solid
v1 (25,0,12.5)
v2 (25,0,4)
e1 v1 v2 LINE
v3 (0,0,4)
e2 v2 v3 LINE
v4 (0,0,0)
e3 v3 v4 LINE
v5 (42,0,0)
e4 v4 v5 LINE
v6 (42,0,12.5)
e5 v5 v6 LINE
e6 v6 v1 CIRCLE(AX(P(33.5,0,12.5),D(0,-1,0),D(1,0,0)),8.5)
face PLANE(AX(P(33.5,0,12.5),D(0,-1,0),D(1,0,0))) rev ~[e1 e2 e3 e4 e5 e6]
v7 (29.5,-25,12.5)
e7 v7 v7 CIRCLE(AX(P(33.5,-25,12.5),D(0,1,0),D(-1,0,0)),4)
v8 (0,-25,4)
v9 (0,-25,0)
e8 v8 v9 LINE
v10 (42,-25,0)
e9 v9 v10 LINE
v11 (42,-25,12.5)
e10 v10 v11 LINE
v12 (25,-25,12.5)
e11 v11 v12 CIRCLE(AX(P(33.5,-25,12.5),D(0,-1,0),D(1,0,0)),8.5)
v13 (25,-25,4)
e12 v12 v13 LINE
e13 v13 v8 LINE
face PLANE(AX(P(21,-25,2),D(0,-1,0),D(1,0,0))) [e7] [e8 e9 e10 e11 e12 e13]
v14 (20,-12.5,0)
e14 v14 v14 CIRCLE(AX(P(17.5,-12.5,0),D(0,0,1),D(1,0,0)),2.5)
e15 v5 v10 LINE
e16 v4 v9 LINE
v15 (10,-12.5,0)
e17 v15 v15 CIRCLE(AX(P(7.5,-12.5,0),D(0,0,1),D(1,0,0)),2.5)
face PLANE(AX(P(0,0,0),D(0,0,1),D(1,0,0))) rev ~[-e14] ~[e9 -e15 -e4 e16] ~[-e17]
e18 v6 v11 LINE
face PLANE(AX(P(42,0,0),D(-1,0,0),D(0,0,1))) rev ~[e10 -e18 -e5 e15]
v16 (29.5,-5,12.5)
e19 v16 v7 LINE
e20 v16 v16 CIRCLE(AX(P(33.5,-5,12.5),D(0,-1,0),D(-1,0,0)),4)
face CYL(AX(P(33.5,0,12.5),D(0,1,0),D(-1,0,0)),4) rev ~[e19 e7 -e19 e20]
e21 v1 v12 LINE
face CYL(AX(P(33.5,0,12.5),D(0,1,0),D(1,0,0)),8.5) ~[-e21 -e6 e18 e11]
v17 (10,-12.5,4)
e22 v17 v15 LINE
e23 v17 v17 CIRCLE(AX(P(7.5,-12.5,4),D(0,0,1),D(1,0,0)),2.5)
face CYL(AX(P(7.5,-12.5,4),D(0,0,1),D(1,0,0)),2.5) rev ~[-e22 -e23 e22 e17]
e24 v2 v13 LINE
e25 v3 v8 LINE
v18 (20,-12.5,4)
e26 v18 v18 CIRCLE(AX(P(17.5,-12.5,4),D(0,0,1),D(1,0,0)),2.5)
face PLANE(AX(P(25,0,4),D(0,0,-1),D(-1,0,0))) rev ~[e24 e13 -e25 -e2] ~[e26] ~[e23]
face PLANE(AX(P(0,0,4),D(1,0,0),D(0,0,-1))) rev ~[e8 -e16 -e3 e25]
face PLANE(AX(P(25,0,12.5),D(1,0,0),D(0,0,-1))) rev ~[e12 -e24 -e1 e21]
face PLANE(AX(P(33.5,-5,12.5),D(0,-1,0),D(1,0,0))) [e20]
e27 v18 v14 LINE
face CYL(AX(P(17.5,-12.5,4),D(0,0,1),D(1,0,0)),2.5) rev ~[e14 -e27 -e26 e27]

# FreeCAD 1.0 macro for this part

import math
import FreeCAD as App
import Part
import Sketcher
from FreeCAD import Vector

doc = App.newDocument("Part")
body = doc.addObject("PartDesign::Body", "Body")

# Sketch on XZ plane
sketch1 = body.newObject("Sketcher::SketchObject", "Sketch")
sketch1.AttachmentSupport = (doc.getObject("XZ_Plane"), [""])
sketch1.MapMode = "FlatFace"
sketch1.addGeometry(Part.LineSegment(Vector(0, 4, 0), Vector(0, 0, 0)), False)
sketch1.addGeometry(Part.LineSegment(Vector(0, 0, 0), Vector(42, 0, 0)), False)
sketch1.addGeometry(Part.LineSegment(Vector(42, 0, 0), Vector(42, 12.5, 0)), False)
sketch1.addGeometry(Part.ArcOfCircle(Part.Circle(Vector(33.5, 12.5, 0), Vector(0, 0, 1), 8.5), math.radians(0), math.radians(180)), False)
sketch1.addGeometry(Part.LineSegment(Vector(25, 12.5, 0), Vector(25, 4, 0)), False)
sketch1.addGeometry(Part.LineSegment(Vector(25, 4, 0), Vector(0, 4, 0)), False)
sketch1.addGeometry(Part.Circle(Vector(33.5, 12.5, 0), Vector(0, 0, 1), 4), False)
sketch1.addConstraint(Sketcher.Constraint("Coincident", 0, 2, 1, 1))
sketch1.addConstraint(Sketcher.Constraint("Coincident", 1, 2, 2, 1))
sketch1.addConstraint(Sketcher.Constraint("Tangent", 2, 2, 3, 1))
sketch1.addConstraint(Sketcher.Constraint("Tangent", 3, 2, 4, 1))
sketch1.addConstraint(Sketcher.Constraint("Coincident", 4, 2, 5, 1))
sketch1.addConstraint(Sketcher.Constraint("Coincident", 5, 2, 0, 1))
sketch1.addConstraint(Sketcher.Constraint("Vertical", 0))
sketch1.addConstraint(Sketcher.Constraint("Horizontal", 1))
sketch1.addConstraint(Sketcher.Constraint("Vertical", 2))
sketch1.addConstraint(Sketcher.Constraint("Vertical", 4))
sketch1.addConstraint(Sketcher.Constraint("Horizontal", 5))
sketch1.addConstraint(Sketcher.Constraint("Coincident", 0, 2, -1, 1))
sketch1.addConstraint(Sketcher.Constraint("Coincident", 6, 3, 3, 3))
sketch1.addConstraint(Sketcher.Constraint("Diameter", 6, 8.0))
sketch1.addConstraint(Sketcher.Constraint("Radius", 3, 8.5))
sketch1.addConstraint(Sketcher.Constraint("DistanceX", 1, 1, 1, 2, 42.0))
sketch1.addConstraint(Sketcher.Constraint("DistanceY", 0, 2, 0, 1, 4.0))
sketch1.addConstraint(Sketcher.Constraint("DistanceY", 2, 1, 2, 2, 12.5))
pad1 = body.newObject("PartDesign::Pad", "Pad")
pad1.Profile = sketch1
pad1.Length = 25

# Sketch on XZ plane
sketch2 = body.newObject("Sketcher::SketchObject", "Sketch001")
sketch2.AttachmentSupport = (doc.getObject("XZ_Plane"), [""])
sketch2.MapMode = "FlatFace"
sketch2.addGeometry(Part.Circle(Vector(33.5, 12.5, 0), Vector(0, 0, 1), 4), False)
sketch2.addConstraint(Sketcher.Constraint("Diameter", 0, 8.0))
sketch2.addConstraint(Sketcher.Constraint("DistanceX", -1, 1, 0, 3, 33.5))
sketch2.addConstraint(Sketcher.Constraint("DistanceY", -1, 1, 0, 3, 12.5))
pad2 = body.newObject("PartDesign::Pad", "Pad001")
pad2.Profile = sketch2
pad2.Length = 5

# Sketch on XY plane
sketch3 = body.newObject("Sketcher::SketchObject", "Sketch002")
sketch3.AttachmentSupport = (doc.getObject("XY_Plane"), [""])
sketch3.MapMode = "FlatFace"
sketch3.AttachmentOffset = App.Placement(Vector(0, 0, 4), App.Rotation())
sketch3.addGeometry(Part.Circle(Vector(7.5, -12.5, 0), Vector(0, 0, 1), 2.5), False)
sketch3.addGeometry(Part.Circle(Vector(17.5, -12.5, 0), Vector(0, 0, 1), 2.5), False)
sketch3.addConstraint(Sketcher.Constraint("Equal", 0, 1))
sketch3.addConstraint(Sketcher.Constraint("Horizontal", 0, 3, 1, 3))
sketch3.addConstraint(Sketcher.Constraint("Diameter", 0, 5.0))
sketch3.addConstraint(Sketcher.Constraint("DistanceX", 0, 3, 1, 3, 10.0))
sketch3.addConstraint(Sketcher.Constraint("DistanceX", -1, 1, 0, 3, 7.5))
sketch3.addConstraint(Sketcher.Constraint("DistanceY", 0, 3, -1, 1, 12.5))
pocket1 = body.newObject("PartDesign::Pocket", "Pocket")
pocket1.Profile = sketch3
pocket1.Length = 25

doc.recompute()
